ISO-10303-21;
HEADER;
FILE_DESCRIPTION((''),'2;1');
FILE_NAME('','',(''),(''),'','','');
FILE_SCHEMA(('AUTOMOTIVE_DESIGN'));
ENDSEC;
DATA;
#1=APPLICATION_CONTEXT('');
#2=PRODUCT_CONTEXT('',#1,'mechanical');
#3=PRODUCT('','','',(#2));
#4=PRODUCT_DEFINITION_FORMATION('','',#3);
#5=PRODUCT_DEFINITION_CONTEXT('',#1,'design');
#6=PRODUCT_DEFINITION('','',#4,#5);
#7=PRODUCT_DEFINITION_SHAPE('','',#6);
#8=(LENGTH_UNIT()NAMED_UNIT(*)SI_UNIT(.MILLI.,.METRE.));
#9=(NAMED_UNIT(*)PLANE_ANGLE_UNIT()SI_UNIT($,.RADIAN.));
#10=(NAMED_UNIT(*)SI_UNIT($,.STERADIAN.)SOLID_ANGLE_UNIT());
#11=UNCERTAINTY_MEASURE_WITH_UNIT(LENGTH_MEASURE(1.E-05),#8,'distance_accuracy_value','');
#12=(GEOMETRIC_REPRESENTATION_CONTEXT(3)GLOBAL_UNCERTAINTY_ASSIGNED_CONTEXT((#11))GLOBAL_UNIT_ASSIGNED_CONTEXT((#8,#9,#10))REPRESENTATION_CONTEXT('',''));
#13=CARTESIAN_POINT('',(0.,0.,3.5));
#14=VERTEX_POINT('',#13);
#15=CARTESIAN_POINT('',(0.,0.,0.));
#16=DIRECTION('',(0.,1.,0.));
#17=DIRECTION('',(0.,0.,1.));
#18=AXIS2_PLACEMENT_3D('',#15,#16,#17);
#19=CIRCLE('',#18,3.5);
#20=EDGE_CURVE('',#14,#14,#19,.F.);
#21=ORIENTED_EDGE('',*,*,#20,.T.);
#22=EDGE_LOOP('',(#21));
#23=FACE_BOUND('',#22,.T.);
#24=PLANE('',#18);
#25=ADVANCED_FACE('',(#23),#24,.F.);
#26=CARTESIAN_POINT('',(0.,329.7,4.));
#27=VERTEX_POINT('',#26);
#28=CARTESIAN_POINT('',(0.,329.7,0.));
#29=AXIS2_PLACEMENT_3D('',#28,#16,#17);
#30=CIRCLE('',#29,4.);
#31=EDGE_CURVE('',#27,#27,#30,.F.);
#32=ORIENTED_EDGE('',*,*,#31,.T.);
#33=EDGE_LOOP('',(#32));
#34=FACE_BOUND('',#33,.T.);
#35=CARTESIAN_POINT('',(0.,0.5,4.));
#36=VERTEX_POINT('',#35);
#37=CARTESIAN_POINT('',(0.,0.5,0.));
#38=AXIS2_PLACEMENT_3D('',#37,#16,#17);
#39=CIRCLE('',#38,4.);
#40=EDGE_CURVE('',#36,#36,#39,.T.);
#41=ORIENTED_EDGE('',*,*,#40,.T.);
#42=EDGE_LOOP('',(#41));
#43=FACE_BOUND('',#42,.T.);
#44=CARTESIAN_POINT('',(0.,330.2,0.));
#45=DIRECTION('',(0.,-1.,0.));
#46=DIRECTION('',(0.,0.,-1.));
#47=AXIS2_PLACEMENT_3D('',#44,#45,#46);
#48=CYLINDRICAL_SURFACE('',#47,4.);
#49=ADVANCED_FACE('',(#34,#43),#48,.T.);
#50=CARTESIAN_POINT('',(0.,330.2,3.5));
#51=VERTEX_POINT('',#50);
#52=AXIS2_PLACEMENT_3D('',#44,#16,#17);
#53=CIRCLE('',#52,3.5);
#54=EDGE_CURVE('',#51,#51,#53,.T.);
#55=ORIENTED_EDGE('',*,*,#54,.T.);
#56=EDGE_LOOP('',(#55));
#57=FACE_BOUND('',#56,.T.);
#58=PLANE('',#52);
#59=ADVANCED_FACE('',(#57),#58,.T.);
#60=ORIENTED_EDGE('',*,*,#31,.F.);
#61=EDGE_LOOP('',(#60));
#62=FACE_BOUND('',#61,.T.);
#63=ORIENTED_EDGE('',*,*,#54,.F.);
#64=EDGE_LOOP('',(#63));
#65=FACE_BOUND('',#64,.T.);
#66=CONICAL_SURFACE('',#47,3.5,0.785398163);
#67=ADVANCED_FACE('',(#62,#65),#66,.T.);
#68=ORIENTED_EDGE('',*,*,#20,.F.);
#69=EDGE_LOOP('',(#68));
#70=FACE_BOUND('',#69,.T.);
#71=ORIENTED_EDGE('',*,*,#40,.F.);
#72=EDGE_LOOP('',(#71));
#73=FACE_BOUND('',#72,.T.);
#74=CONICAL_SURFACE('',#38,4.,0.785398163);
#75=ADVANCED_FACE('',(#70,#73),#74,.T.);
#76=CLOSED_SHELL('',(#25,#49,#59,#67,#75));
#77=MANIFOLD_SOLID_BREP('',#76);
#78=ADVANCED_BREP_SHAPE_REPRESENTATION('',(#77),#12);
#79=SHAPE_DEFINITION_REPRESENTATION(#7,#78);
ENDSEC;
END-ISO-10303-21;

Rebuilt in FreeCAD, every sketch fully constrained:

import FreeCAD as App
import Part
import Sketcher
from FreeCAD import Vector


def edges_at(feature, points):
    """Names of the edges that pass closest to the given points."""
    edges = feature.Shape.Edges
    near = lambda p: min(range(len(edges)), key=lambda i: edges[i].distToShape(Part.Vertex(*p))[0])
    return sorted({f"Edge{near(p) + 1}" for p in points})

doc = App.newDocument("Part")
body = doc.addObject("PartDesign::Body", "Body")

# Sketch on XZ plane
sketch1 = doc.addObject("Sketcher::SketchObject", "Sketch")
body.addObject(sketch1)
sketch1.AttachmentSupport = (doc.XZ_Plane, [""])
sketch1.MapMode = "FlatFace"
sketch1.addGeometry(Part.Circle(Vector(0, 0, 0), Vector(0, 0, 1), 4), False)
sketch1.addConstraint([
    Sketcher.Constraint("Coincident", 0, 3, -1, 1),
    Sketcher.Constraint("Diameter", 0, 8.0),
])
pad1 = doc.addObject("PartDesign::Pad", "Pad")
body.addObject(pad1)
pad1.Profile = sketch1
pad1.Length = 330.2
pad1.Reversed = True
doc.recompute()

chamfer = doc.addObject("PartDesign::Chamfer", "Chamfer")
body.addObject(chamfer)
chamfer.Base = (pad1, edges_at(pad1, [(-4, 0, 0), (-4, 330.2, 0)]))
chamfer.Size = 0.5

doc.recompute()
